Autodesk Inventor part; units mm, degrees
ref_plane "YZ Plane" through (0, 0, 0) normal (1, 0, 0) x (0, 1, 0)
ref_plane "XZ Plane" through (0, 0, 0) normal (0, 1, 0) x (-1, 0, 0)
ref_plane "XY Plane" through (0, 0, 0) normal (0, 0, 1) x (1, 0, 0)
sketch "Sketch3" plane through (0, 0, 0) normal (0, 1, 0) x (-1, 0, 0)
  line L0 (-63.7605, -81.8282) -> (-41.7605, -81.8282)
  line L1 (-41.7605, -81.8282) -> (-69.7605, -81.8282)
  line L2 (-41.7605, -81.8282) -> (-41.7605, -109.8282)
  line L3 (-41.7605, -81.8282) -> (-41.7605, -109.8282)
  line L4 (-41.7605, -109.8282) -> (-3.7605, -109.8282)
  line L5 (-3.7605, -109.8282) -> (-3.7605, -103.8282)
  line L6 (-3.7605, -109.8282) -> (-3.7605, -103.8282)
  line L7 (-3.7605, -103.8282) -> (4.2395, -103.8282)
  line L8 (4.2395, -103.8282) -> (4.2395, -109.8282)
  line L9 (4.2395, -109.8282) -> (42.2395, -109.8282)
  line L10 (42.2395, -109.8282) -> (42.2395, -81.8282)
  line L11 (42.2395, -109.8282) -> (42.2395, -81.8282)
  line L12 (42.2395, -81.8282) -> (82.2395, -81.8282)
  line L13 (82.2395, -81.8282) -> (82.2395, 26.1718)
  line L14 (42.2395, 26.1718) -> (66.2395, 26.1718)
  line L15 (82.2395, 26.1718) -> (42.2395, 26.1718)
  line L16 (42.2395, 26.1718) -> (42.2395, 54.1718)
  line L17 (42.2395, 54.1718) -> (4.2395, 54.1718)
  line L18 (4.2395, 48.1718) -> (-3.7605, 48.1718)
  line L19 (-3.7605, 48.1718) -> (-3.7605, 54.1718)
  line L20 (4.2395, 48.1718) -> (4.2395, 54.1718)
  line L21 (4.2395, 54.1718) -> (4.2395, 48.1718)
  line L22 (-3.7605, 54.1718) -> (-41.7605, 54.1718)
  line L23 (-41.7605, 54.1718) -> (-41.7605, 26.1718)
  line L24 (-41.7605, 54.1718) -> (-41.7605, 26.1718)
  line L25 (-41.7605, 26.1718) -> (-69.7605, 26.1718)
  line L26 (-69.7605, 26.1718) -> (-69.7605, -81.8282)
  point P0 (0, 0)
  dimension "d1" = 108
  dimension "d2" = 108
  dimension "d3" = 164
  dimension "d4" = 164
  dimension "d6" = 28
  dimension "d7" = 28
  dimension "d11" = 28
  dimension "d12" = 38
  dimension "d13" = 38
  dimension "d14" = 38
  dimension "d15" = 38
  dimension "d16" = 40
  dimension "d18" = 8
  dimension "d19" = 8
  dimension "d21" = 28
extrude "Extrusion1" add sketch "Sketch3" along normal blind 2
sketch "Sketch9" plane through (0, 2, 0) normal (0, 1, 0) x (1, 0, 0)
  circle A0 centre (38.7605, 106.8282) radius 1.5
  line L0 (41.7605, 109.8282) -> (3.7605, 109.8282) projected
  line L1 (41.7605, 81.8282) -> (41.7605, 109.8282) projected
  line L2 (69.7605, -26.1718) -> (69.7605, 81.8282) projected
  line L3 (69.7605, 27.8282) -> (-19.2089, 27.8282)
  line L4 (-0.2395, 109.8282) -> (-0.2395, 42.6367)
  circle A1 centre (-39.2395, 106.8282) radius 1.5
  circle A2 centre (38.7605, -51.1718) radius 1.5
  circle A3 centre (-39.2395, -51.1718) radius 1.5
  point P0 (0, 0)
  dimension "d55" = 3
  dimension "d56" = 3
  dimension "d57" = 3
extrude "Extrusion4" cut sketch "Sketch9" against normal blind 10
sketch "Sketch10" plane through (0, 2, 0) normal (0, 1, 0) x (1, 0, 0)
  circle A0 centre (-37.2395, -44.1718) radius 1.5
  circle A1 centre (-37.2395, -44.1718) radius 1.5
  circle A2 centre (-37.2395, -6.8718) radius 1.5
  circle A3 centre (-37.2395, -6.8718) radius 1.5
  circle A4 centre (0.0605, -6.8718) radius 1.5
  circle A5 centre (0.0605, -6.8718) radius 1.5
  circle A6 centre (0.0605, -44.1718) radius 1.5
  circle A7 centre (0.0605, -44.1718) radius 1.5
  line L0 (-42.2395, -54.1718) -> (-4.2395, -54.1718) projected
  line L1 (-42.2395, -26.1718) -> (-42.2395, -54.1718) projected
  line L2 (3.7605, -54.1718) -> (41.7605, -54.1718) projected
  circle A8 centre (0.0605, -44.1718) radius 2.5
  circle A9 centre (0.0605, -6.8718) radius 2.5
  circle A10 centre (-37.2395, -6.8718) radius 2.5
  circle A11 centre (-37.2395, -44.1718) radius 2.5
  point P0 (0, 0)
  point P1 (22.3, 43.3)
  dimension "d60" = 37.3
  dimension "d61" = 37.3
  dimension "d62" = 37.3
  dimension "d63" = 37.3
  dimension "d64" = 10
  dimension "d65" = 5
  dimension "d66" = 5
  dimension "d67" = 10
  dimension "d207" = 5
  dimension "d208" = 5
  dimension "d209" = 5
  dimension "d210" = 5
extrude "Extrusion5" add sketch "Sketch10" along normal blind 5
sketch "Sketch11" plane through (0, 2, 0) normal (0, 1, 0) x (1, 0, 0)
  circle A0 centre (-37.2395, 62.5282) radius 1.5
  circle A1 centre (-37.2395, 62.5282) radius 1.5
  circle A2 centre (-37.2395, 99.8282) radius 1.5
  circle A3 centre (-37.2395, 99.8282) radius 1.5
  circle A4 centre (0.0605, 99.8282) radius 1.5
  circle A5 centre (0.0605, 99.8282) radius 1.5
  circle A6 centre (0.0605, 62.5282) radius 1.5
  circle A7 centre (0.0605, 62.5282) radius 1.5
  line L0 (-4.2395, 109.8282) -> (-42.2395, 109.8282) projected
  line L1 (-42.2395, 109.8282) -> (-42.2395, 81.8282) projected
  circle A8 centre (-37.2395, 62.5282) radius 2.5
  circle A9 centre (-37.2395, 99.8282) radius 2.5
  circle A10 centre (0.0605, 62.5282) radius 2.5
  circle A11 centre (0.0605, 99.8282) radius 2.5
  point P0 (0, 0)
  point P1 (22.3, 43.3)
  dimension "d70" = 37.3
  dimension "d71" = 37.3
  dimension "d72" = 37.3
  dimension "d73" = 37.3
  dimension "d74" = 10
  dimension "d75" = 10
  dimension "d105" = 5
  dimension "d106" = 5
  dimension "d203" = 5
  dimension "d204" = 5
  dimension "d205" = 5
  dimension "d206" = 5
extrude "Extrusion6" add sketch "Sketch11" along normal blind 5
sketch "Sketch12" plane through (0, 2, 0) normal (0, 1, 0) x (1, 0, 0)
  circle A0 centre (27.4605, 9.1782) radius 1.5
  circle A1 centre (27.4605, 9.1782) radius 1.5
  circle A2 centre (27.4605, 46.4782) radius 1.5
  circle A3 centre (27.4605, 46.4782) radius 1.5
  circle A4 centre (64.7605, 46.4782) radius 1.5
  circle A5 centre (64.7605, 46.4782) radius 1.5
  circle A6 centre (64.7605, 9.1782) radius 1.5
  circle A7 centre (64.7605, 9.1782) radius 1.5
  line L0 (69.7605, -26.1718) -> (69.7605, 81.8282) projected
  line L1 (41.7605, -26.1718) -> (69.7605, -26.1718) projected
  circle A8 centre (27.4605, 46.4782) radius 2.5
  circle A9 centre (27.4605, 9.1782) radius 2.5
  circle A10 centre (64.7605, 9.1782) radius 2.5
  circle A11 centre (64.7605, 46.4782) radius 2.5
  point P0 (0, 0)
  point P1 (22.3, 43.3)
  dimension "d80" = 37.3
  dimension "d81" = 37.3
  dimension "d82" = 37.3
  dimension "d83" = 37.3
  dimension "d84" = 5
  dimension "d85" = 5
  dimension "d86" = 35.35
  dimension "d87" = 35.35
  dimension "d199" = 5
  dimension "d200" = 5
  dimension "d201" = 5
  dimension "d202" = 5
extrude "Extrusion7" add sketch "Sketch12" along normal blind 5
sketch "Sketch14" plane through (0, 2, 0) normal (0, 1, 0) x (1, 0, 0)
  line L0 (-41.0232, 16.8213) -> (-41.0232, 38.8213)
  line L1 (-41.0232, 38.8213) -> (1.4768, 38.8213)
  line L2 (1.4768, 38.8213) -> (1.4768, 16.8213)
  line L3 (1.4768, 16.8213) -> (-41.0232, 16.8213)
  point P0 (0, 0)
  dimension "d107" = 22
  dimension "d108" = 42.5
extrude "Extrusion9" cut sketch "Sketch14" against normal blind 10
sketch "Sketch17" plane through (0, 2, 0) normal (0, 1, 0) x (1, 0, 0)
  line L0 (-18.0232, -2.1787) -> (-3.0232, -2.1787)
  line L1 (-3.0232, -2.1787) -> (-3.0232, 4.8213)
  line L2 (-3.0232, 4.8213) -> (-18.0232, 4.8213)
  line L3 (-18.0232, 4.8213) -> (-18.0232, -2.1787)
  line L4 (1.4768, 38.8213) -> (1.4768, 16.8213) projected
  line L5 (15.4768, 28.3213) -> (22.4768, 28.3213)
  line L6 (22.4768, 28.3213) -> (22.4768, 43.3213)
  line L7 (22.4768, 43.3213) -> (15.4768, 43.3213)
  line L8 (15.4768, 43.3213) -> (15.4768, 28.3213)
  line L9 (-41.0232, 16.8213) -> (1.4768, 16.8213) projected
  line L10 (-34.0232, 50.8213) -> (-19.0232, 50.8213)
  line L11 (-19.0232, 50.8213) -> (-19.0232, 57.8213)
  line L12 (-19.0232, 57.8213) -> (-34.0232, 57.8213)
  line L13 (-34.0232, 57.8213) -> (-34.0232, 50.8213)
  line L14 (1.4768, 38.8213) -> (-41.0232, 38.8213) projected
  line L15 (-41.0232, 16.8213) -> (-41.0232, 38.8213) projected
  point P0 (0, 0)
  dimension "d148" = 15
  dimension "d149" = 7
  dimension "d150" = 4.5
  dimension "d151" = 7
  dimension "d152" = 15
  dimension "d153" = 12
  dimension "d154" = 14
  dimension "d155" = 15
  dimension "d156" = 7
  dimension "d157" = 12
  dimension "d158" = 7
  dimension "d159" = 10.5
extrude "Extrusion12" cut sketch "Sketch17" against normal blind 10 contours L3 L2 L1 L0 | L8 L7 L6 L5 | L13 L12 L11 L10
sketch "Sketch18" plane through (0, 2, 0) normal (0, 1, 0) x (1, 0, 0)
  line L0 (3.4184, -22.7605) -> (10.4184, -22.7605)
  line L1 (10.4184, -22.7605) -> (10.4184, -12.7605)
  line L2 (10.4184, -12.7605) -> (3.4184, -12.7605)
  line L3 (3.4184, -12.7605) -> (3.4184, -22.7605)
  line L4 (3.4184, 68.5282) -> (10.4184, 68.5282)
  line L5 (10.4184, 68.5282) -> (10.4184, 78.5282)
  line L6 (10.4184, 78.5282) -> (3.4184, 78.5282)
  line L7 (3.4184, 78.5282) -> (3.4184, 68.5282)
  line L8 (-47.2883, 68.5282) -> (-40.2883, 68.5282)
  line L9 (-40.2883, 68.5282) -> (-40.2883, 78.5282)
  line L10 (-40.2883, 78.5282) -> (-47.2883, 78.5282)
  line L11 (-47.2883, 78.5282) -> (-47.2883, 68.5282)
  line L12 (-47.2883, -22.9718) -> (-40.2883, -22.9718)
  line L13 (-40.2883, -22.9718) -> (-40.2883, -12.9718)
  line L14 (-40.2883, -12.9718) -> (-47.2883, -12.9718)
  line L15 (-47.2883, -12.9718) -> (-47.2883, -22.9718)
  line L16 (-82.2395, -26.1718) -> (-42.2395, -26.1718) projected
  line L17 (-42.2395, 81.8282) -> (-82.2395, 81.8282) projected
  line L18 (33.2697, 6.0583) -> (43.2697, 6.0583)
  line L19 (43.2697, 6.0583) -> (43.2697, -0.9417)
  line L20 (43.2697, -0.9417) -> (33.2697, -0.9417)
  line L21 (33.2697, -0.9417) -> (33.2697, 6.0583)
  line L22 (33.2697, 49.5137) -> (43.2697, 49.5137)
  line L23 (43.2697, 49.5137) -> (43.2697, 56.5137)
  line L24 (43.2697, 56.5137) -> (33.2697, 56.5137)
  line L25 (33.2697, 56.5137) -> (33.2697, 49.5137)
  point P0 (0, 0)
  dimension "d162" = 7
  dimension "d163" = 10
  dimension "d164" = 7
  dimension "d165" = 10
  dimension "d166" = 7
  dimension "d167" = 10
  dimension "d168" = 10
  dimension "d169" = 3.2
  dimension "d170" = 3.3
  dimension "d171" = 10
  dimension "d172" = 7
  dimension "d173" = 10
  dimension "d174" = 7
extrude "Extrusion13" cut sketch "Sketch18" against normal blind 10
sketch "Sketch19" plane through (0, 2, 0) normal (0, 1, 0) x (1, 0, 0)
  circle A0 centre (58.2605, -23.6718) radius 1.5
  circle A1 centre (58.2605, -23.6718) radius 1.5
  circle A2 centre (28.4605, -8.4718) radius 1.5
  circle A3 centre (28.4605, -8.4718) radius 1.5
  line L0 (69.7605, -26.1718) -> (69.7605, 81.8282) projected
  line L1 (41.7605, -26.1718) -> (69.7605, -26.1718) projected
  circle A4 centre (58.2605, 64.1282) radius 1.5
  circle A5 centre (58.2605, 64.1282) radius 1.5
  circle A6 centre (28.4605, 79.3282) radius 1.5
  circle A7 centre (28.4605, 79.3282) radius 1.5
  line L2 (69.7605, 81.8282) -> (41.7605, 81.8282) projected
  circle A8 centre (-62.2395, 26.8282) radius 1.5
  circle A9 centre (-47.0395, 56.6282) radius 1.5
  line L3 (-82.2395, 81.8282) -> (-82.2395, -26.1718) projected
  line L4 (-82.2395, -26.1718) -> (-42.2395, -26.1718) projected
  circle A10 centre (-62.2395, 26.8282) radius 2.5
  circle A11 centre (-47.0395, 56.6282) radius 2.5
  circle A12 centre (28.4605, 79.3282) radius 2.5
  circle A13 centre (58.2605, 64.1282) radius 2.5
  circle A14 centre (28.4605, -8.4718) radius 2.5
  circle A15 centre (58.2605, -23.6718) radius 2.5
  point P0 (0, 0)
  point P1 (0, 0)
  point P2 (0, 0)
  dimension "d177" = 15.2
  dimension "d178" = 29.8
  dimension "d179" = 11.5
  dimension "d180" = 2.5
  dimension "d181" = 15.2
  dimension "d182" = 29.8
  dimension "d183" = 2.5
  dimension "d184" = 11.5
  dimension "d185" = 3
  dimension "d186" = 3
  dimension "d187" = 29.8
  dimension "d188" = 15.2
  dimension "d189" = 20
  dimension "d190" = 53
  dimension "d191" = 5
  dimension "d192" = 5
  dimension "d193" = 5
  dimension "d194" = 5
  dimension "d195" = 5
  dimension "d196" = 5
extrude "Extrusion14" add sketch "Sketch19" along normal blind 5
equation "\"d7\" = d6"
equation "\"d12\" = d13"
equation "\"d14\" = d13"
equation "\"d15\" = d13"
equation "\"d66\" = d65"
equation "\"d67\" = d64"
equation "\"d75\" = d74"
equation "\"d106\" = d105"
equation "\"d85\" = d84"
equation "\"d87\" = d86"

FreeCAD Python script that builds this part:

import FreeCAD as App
import Part
import Sketcher

V = App.Vector

doc = App.newDocument("Part")
body = doc.addObject("PartDesign::Body", "Body")

# Sketch on XZ plane
sketch1 = body.newObject("Sketcher::SketchObject", "Sketch")
sketch1.AttachmentSupport = (doc.getObject("XZ_Plane"), [""])
sketch1.MapMode = "FlatFace"
sketch1.addGeometry([
    Part.LineSegment(V(70, -82, 0), V(42, -82, 0)),  # 0
    Part.LineSegment(V(42, -82, 0), V(42, -110, 0)),  # 1
    Part.LineSegment(V(42, -110, 0), V(4, -110, 0)),  # 2
    Part.LineSegment(V(4, -110, 0), V(4, -104, 0)),  # 3
    Part.LineSegment(V(4, -104, 0), V(-4, -104, 0)),  # 4
    Part.LineSegment(V(-4, -104, 0), V(-4, -110, 0)),  # 5
    Part.LineSegment(V(-4, -110, 0), V(-42, -110, 0)),  # 6
    Part.LineSegment(V(-42, -110, 0), V(-42, -82, 0)),  # 7
    Part.LineSegment(V(-42, -82, 0), V(-82, -82, 0)),  # 8
    Part.LineSegment(V(-82, -82, 0), V(-82, 26, 0)),  # 9
    Part.LineSegment(V(-82, 26, 0), V(-42, 26, 0)),  # 10
    Part.LineSegment(V(-42, 26, 0), V(-42, 54, 0)),  # 11
    Part.LineSegment(V(-42, 54, 0), V(-4, 54, 0)),  # 12
    Part.LineSegment(V(-4, 54, 0), V(-4, 48, 0)),  # 13
    Part.LineSegment(V(-4, 48, 0), V(4, 48, 0)),  # 14
    Part.LineSegment(V(4, 48, 0), V(4, 54, 0)),  # 15
    Part.LineSegment(V(4, 54, 0), V(42, 54, 0)),  # 16
    Part.LineSegment(V(42, 54, 0), V(42, 26, 0)),  # 17
    Part.LineSegment(V(42, 26, 0), V(70, 26, 0)),  # 18
    Part.LineSegment(V(70, 26, 0), V(70, -82, 0)),  # 19
], False)
sketch1.addConstraint([
    Sketcher.Constraint("Coincident", 0, 2, 1, 1),
    Sketcher.Constraint("Coincident", 1, 2, 2, 1),
    Sketcher.Constraint("Coincident", 2, 2, 3, 1),
    Sketcher.Constraint("Coincident", 3, 2, 4, 1),
    Sketcher.Constraint("Coincident", 4, 2, 5, 1),
    Sketcher.Constraint("Coincident", 5, 2, 6, 1),
    Sketcher.Constraint("Coincident", 6, 2, 7, 1),
    Sketcher.Constraint("Coincident", 7, 2, 8, 1),
    Sketcher.Constraint("Coincident", 8, 2, 9, 1),
    Sketcher.Constraint("Coincident", 9, 2, 10, 1),
    Sketcher.Constraint("Coincident", 10, 2, 11, 1),
    Sketcher.Constraint("Coincident", 11, 2, 12, 1),
    Sketcher.Constraint("Coincident", 12, 2, 13, 1),
    Sketcher.Constraint("Coincident", 13, 2, 14, 1),
    Sketcher.Constraint("Coincident", 14, 2, 15, 1),
    Sketcher.Constraint("Coincident", 15, 2, 16, 1),
    Sketcher.Constraint("Coincident", 16, 2, 17, 1),
    Sketcher.Constraint("Coincident", 17, 2, 18, 1),
    Sketcher.Constraint("Coincident", 18, 2, 19, 1),
    Sketcher.Constraint("Coincident", 19, 2, 0, 1),
    Sketcher.Constraint("Horizontal", 0),
    Sketcher.Constraint("Vertical", 1),
    Sketcher.Constraint("Horizontal", 2),
    Sketcher.Constraint("Vertical", 3),
    Sketcher.Constraint("Horizontal", 4),
    Sketcher.Constraint("Vertical", 5),
    Sketcher.Constraint("Horizontal", 6),
    Sketcher.Constraint("Vertical", 7),
    Sketcher.Constraint("Horizontal", 8),
    Sketcher.Constraint("Vertical", 9),
    Sketcher.Constraint("Horizontal", 10),
    Sketcher.Constraint("Vertical", 11),
    Sketcher.Constraint("Horizontal", 12),
    Sketcher.Constraint("Vertical", 13),
    Sketcher.Constraint("Horizontal", 14),
    Sketcher.Constraint("Vertical", 15),
    Sketcher.Constraint("Horizontal", 16),
    Sketcher.Constraint("Vertical", 17),
    Sketcher.Constraint("Horizontal", 18),
    Sketcher.Constraint("Vertical", 19),
    Sketcher.Constraint("Horizontal", 2, 2, 5, 2),
    Sketcher.Constraint("Horizontal", 0, 2, 7, 2),
    Sketcher.Constraint("Horizontal", 12, 2, 15, 2),
    Sketcher.Constraint("Horizontal", 10, 2, 17, 2),
    Sketcher.Constraint("Vertical", 7, 2, 10, 2),
    Sketcher.Constraint("Vertical", 5, 2, 12, 2),
    Sketcher.Constraint("Vertical", 3, 2, 14, 2),
    Sketcher.Constraint("Vertical", 1, 2, 16, 2),
    Sketcher.Constraint("Equal", 2, 6),
    Sketcher.Constraint("Equal", 18, 1),
    Sketcher.Constraint("Equal", 7, 11),
    Sketcher.Constraint("Equal", 5, 13),
    Sketcher.Constraint("DistanceX", 0, 2, 0, 1, 28.0),
    Sketcher.Constraint("DistanceX", 2, 2, 2, 1, 38.0),
    Sketcher.Constraint("DistanceX", 4, 2, 4, 1, 8.0),
    Sketcher.Constraint("DistanceX", 8, 2, 8, 1, 40.0),
    Sketcher.Constraint("DistanceY", 9, 1, 9, 2, 108.0),
    Sketcher.Constraint("DistanceY", 3, 1, 3, 2, 6.0),
    Sketcher.Constraint("DistanceX", -1, 1, 0, 2, 41.7605),
    Sketcher.Constraint("DistanceY", 0, 2, -1, 1, 81.8282),
])
pad1 = body.newObject("PartDesign::Pad", "Pad")
pad1.Profile = sketch1
pad1.Length = 2
pad1.Reversed = True

# Sketch on XZ plane
sketch2 = body.newObject("Sketcher::SketchObject", "Sketch001")
sketch2.AttachmentSupport = (doc.getObject("XZ_Plane"), [""])
sketch2.MapMode = "FlatFace"
sketch2.AttachmentOffset = App.Placement(V(0, 0, -2), App.Rotation())
sketch2.addGeometry([
    Part.Circle(V(38.8, -106.8, 0), V(0, 0, 1), 1.5),
    Part.Circle(V(-39.2, -106.8, 0), V(0, 0, 1), 1.5),
    Part.Circle(V(38.8, 51.2, 0), V(0, 0, 1), 1.5),
    Part.Circle(V(-39.2, 51.2, 0), V(0, 0, 1), 1.5),
], False)
sketch2.addConstraint([
    Sketcher.Constraint("Equal", 0, 1),
    Sketcher.Constraint("Equal", 1, 2),
    Sketcher.Constraint("Equal", 2, 3),
    Sketcher.Constraint("Horizontal", 0, 3, 1, 3),
    Sketcher.Constraint("Horizontal", 2, 3, 3, 3),
    Sketcher.Constraint("Vertical", 0, 3, 2, 3),
    Sketcher.Constraint("Vertical", 1, 3, 3, 3),
    Sketcher.Constraint("Diameter", 0, 3.0),
    Sketcher.Constraint("DistanceX", 1, 3, 0, 3, 78.0),
    Sketcher.Constraint("DistanceY", 0, 3, 2, 3, 158.0),
    Sketcher.Constraint("DistanceX", -1, 1, 0, 3, 38.7605),
    Sketcher.Constraint("DistanceY", 0, 3, -1, 1, 106.8282),
])
pocket1 = body.newObject("PartDesign::Pocket", "Pocket")
pocket1.Profile = sketch2
pocket1.Length = 10
pocket1.Reversed = True

# Sketch on XZ plane
sketch3 = body.newObject("Sketcher::SketchObject", "Sketch002")
sketch3.AttachmentSupport = (doc.getObject("XZ_Plane"), [""])
sketch3.MapMode = "FlatFace"
sketch3.AttachmentOffset = App.Placement(V(0, 0, -2), App.Rotation())
sketch3.addGeometry([
    Part.Circle(V(0.1, 44.2, 0), V(0, 0, 1), 2.5),  # 0
    Part.Circle(V(0.1, 44.2, 0), V(0, 0, 1), 1.5),  # 1
    Part.Circle(V(0.1, 6.9, 0), V(0, 0, 1), 2.5),  # 2
    Part.Circle(V(0.1, 6.9, 0), V(0, 0, 1), 1.5),  # 3
    Part.Circle(V(-37.2, 6.9, 0), V(0, 0, 1), 2.5),  # 4
    Part.Circle(V(-37.2, 6.9, 0), V(0, 0, 1), 1.5),  # 5
    Part.Circle(V(-37.2, 44.2, 0), V(0, 0, 1), 2.5),  # 6
    Part.Circle(V(-37.2, 44.2, 0), V(0, 0, 1), 1.5),  # 7
], False)
sketch3.addConstraint([
    Sketcher.Constraint("Coincident", 1, 3, 0, 3),
    Sketcher.Constraint("Coincident", 3, 3, 2, 3),
    Sketcher.Constraint("Coincident", 5, 3, 4, 3),
    Sketcher.Constraint("Coincident", 7, 3, 6, 3),
    Sketcher.Constraint("Equal", 0, 2),
    Sketcher.Constraint("Equal", 1, 3),
    Sketcher.Constraint("Equal", 2, 4),
    Sketcher.Constraint("Equal", 3, 5),
    Sketcher.Constraint("Equal", 4, 6),
    Sketcher.Constraint("Equal", 5, 7),
    Sketcher.Constraint("Horizontal", 3, 3, 4, 3),
    Sketcher.Constraint("Horizontal", 1, 3, 6, 3),
    Sketcher.Constraint("Vertical", 1, 3, 2, 3),
    Sketcher.Constraint("Vertical", 5, 3, 6, 3),
    Sketcher.Constraint("Diameter", 0, 5.0),
    Sketcher.Constraint("Diameter", 1, 3.0),
    Sketcher.Constraint("DistanceY", 2, 3, 0, 3, 37.3),
    Sketcher.Constraint("DistanceX", 4, 3, 2, 3, 37.3),
    Sketcher.Constraint("DistanceX", -1, 1, 0, 3, 0.0605),
    Sketcher.Constraint("DistanceY", -1, 1, 0, 3, 44.1718),
])
pad2 = body.newObject("PartDesign::Pad", "Pad001")
pad2.Profile = sketch3
pad2.Length = 5
pad2.Reversed = True

# Sketch on XZ plane
sketch4 = body.newObject("Sketcher::SketchObject", "Sketch003")
sketch4.AttachmentSupport = (doc.getObject("XZ_Plane"), [""])
sketch4.MapMode = "FlatFace"
sketch4.AttachmentOffset = App.Placement(V(0, 0, -2), App.Rotation())
sketch4.addGeometry([
    Part.Circle(V(-37.2, -62.5, 0), V(0, 0, 1), 2.5),  # 0
    Part.Circle(V(-37.2, -62.5, 0), V(0, 0, 1), 1.5),  # 1
    Part.Circle(V(-37.2, -99.8, 0), V(0, 0, 1), 2.5),  # 2
    Part.Circle(V(-37.2, -99.8, 0), V(0, 0, 1), 1.5),  # 3
    Part.Circle(V(0.1, -62.5, 0), V(0, 0, 1), 2.5),  # 4
    Part.Circle(V(0.1, -62.5, 0), V(0, 0, 1), 1.5),  # 5
    Part.Circle(V(0.1, -99.8, 0), V(0, 0, 1), 2.5),  # 6
    Part.Circle(V(0.1, -99.8, 0), V(0, 0, 1), 1.5),  # 7
], False)
sketch4.addConstraint([
    Sketcher.Constraint("Coincident", 1, 3, 0, 3),
    Sketcher.Constraint("Coincident", 3, 3, 2, 3),
    Sketcher.Constraint("Coincident", 5, 3, 4, 3),
    Sketcher.Constraint("Coincident", 7, 3, 6, 3),
    Sketcher.Constraint("Equal", 0, 2),
    Sketcher.Constraint("Equal", 1, 3),
    Sketcher.Constraint("Equal", 2, 4),
    Sketcher.Constraint("Equal", 3, 5),
    Sketcher.Constraint("Equal", 4, 6),
    Sketcher.Constraint("Equal", 5, 7),
    Sketcher.Constraint("Horizontal", 1, 3, 4, 3),
    Sketcher.Constraint("Horizontal", 3, 3, 6, 3),
    Sketcher.Constraint("Vertical", 1, 3, 2, 3),
    Sketcher.Constraint("Vertical", 5, 3, 6, 3),
    Sketcher.Constraint("Diameter", 0, 5.0),
    Sketcher.Constraint("Diameter", 1, 3.0),
    Sketcher.Constraint("DistanceY", 2, 3, 0, 3, 37.3),
    Sketcher.Constraint("DistanceX", 0, 3, 4, 3, 37.3),
    Sketcher.Constraint("DistanceX", 0, 3, -1, 1, 37.2395),
    Sketcher.Constraint("DistanceY", 0, 3, -1, 1, 62.5282),
])
pad3 = body.newObject("PartDesign::Pad", "Pad002")
pad3.Profile = sketch4
pad3.Length = 5
pad3.Reversed = True

# Sketch on XZ plane
sketch5 = body.newObject("Sketcher::SketchObject", "Sketch004")
sketch5.AttachmentSupport = (doc.getObject("XZ_Plane"), [""])
sketch5.MapMode = "FlatFace"
sketch5.AttachmentOffset = App.Placement(V(0, 0, -2), App.Rotation())
sketch5.addGeometry([
    Part.Circle(V(27.5, -46.5, 0), V(0, 0, 1), 2.5),  # 0
    Part.Circle(V(27.5, -46.5, 0), V(0, 0, 1), 1.5),  # 1
    Part.Circle(V(27.5, -9.2, 0), V(0, 0, 1), 2.5),  # 2
    Part.Circle(V(27.5, -9.2, 0), V(0, 0, 1), 1.5),  # 3
    Part.Circle(V(64.8, -9.2, 0), V(0, 0, 1), 2.5),  # 4
    Part.Circle(V(64.8, -9.2, 0), V(0, 0, 1), 1.5),  # 5
    Part.Circle(V(64.8, -46.5, 0), V(0, 0, 1), 2.5),  # 6
    Part.Circle(V(64.8, -46.5, 0), V(0, 0, 1), 1.5),  # 7
], False)
sketch5.addConstraint([
    Sketcher.Constraint("Coincident", 1, 3, 0, 3),
    Sketcher.Constraint("Coincident", 3, 3, 2, 3),
    Sketcher.Constraint("Coincident", 5, 3, 4, 3),
    Sketcher.Constraint("Coincident", 7, 3, 6, 3),
    Sketcher.Constraint("Equal", 0, 2),
    Sketcher.Constraint("Equal", 1, 3),
    Sketcher.Constraint("Equal", 2, 4),
    Sketcher.Constraint("Equal", 3, 5),
    Sketcher.Constraint("Equal", 4, 6),
    Sketcher.Constraint("Equal", 5, 7),
    Sketcher.Constraint("Horizontal", 3, 3, 4, 3),
    Sketcher.Constraint("Horizontal", 1, 3, 6, 3),
    Sketcher.Constraint("Vertical", 1, 3, 2, 3),
    Sketcher.Constraint("Vertical", 5, 3, 6, 3),
    Sketcher.Constraint("Diameter", 0, 5.0),
    Sketcher.Constraint("Diameter", 1, 3.0),
    Sketcher.Constraint("DistanceY", 0, 3, 2, 3, 37.3),
    Sketcher.Constraint("DistanceX", 2, 3, 4, 3, 37.3),
    Sketcher.Constraint("DistanceX", -1, 1, 0, 3, 27.4605),
    Sketcher.Constraint("DistanceY", 0, 3, -1, 1, 46.4782),
])
pad4 = body.newObject("PartDesign::Pad", "Pad003")
pad4.Profile = sketch5
pad4.Length = 5
pad4.Reversed = True

# Sketch on XZ plane
sketch6 = body.newObject("Sketcher::SketchObject", "Sketch005")
sketch6.AttachmentSupport = (doc.getObject("XZ_Plane"), [""])
sketch6.MapMode = "FlatFace"
sketch6.AttachmentOffset = App.Placement(V(0, 0, -2), App.Rotation())
sketch6.addGeometry([
    Part.LineSegment(V(-41, -39, 0), V(-41, -17, 0)),
    Part.LineSegment(V(-41, -17, 0), V(1, -17, 0)),
    Part.LineSegment(V(1, -17, 0), V(1, -39, 0)),
    Part.LineSegment(V(1, -39, 0), V(-41, -39, 0)),
], False)
sketch6.addConstraint([
    Sketcher.Constraint("Coincident", 0, 2, 1, 1),
    Sketcher.Constraint("Coincident", 1, 2, 2, 1),
    Sketcher.Constraint("Coincident", 2, 2, 3, 1),
    Sketcher.Constraint("Coincident", 3, 2, 0, 1),
    Sketcher.Constraint("Vertical", 0),
    Sketcher.Constraint("Horizontal", 1),
    Sketcher.Constraint("Vertical", 2),
    Sketcher.Constraint("Horizontal", 3),
    Sketcher.Constraint("DistanceY", 0, 1, 0, 2, 22.0),
    Sketcher.Constraint("DistanceX", 1, 1, 1, 2, 42.5),
    Sketcher.Constraint("DistanceX", 0, 2, -1, 1, 41.0232),
    Sketcher.Constraint("DistanceY", 0, 2, -1, 1, 16.8213),
])
pocket2 = body.newObject("PartDesign::Pocket", "Pocket001")
pocket2.Profile = sketch6
pocket2.Length = 10
pocket2.Reversed = True

# Sketch on XZ plane
sketch7 = body.newObject("Sketcher::SketchObject", "Sketch006")
sketch7.AttachmentSupport = (doc.getObject("XZ_Plane"), [""])
sketch7.MapMode = "FlatFace"
sketch7.AttachmentOffset = App.Placement(V(0, 0, -2), App.Rotation())
sketch7.addGeometry([
    Part.LineSegment(V(-18, -5, 0), V(-18, 2, 0)),  # 0
    Part.LineSegment(V(-18, 2, 0), V(-3, 2, 0)),  # 1
    Part.LineSegment(V(-3, 2, 0), V(-3, -5, 0)),  # 2
    Part.LineSegment(V(-3, -5, 0), V(-18, -5, 0)),  # 3
    Part.LineSegment(V(15, -43, 0), V(15, -28, 0)),  # 4
    Part.LineSegment(V(15, -28, 0), V(22, -28, 0)),  # 5
    Part.LineSegment(V(22, -28, 0), V(22, -43, 0)),  # 6
    Part.LineSegment(V(22, -43, 0), V(15, -43, 0)),  # 7
    Part.LineSegment(V(-34, -58, 0), V(-34, -51, 0)),  # 8
    Part.LineSegment(V(-34, -51, 0), V(-19, -51, 0)),  # 9
    Part.LineSegment(V(-19, -51, 0), V(-19, -58, 0)),  # 10
    Part.LineSegment(V(-19, -58, 0), V(-34, -58, 0)),  # 11
], False)
sketch7.addConstraint([
    Sketcher.Constraint("Coincident", 0, 2, 1, 1),
    Sketcher.Constraint("Coincident", 1, 2, 2, 1),
    Sketcher.Constraint("Coincident", 2, 2, 3, 1),
    Sketcher.Constraint("Coincident", 3, 2, 0, 1),
    Sketcher.Constraint("Coincident", 4, 2, 5, 1),
    Sketcher.Constraint("Coincident", 5, 2, 6, 1),
    Sketcher.Constraint("Coincident", 6, 2, 7, 1),
    Sketcher.Constraint("Coincident", 7, 2, 4, 1),
    Sketcher.Constraint("Coincident", 8, 2, 9, 1),
    Sketcher.Constraint("Coincident", 9, 2, 10, 1),
    Sketcher.Constraint("Coincident", 10, 2, 11, 1),
    Sketcher.Constraint("Coincident", 11, 2, 8, 1),
    Sketcher.Constraint("Vertical", 0),
    Sketcher.Constraint("Horizontal", 1),
    Sketcher.Constraint("Vertical", 2),
    Sketcher.Constraint("Horizontal", 3),
    Sketcher.Constraint("Vertical", 4),
    Sketcher.Constraint("Horizontal", 5),
    Sketcher.Constraint("Vertical", 6),
    Sketcher.Constraint("Horizontal", 7),
    Sketcher.Constraint("Vertical", 8),
    Sketcher.Constraint("Horizontal", 9),
    Sketcher.Constraint("Vertical", 10),
    Sketcher.Constraint("Horizontal", 11),
    Sketcher.Constraint("Equal", 3, 9),
    Sketcher.Constraint("Equal", 7, 0),
    Sketcher.Constraint("Equal", 11, 4),
    Sketcher.Constraint("Equal", 2, 8),
    Sketcher.Constraint("DistanceX", 1, 1, 1, 2, 15.0),
    Sketcher.Constraint("DistanceX", 5, 1, 5, 2, 7.0),
    Sketcher.Constraint("DistanceX", 8, 2, 3, 2, 16.0),
    Sketcher.Constraint("DistanceY", 8, 2, 3, 2, 46.0),
    Sketcher.Constraint("DistanceX", 2, 2, 4, 2, 18.5),
    Sketcher.Constraint("DistanceY", 4, 2, 2, 2, 23.5),
    Sketcher.Constraint("DistanceX", 0, 2, -1, 1, 18.0232),
    Sketcher.Constraint("DistanceY", -1, 1, 0, 2, 2.1787),
])
pocket3 = body.newObject("PartDesign::Pocket", "Pocket002")
pocket3.Profile = sketch7
pocket3.Length = 10
pocket3.Reversed = True

# Sketch on XZ plane
sketch8 = body.newObject("Sketcher::SketchObject", "Sketch007")
sketch8.AttachmentSupport = (doc.getObject("XZ_Plane"), [""])
sketch8.MapMode = "FlatFace"
sketch8.AttachmentOffset = App.Placement(V(0, 0, -2), App.Rotation())
sketch8.addGeometry([
    Part.LineSegment(V(3, 13, 0), V(3, 23, 0)),  # 0
    Part.LineSegment(V(3, 23, 0), V(10, 23, 0)),  # 1
    Part.LineSegment(V(10, 23, 0), V(10, 13, 0)),  # 2
    Part.LineSegment(V(10, 13, 0), V(3, 13, 0)),  # 3
    Part.LineSegment(V(3, -79, 0), V(3, -69, 0)),  # 4
    Part.LineSegment(V(3, -69, 0), V(10, -69, 0)),  # 5
    Part.LineSegment(V(10, -69, 0), V(10, -79, 0)),  # 6
    Part.LineSegment(V(10, -79, 0), V(3, -79, 0)),  # 7
    Part.LineSegment(V(-47, -79, 0), V(-47, -69, 0)),  # 8
    Part.LineSegment(V(-47, -69, 0), V(-40, -69, 0)),  # 9
    Part.LineSegment(V(-40, -69, 0), V(-40, -79, 0)),  # 10
    Part.LineSegment(V(-40, -79, 0), V(-47, -79, 0)),  # 11
    Part.LineSegment(V(-47, 13, 0), V(-47, 23, 0)),  # 12
    Part.LineSegment(V(-47, 23, 0), V(-40, 23, 0)),  # 13
    Part.LineSegment(V(-40, 23, 0), V(-40, 13, 0)),  # 14
    Part.LineSegment(V(-40, 13, 0), V(-47, 13, 0)),  # 15
    Part.LineSegment(V(43, -6, 0), V(33, -6, 0)),  # 16
    Part.LineSegment(V(33, -6, 0), V(33, 1, 0)),  # 17
    Part.LineSegment(V(33, 1, 0), V(43, 1, 0)),  # 18
    Part.LineSegment(V(43, 1, 0), V(43, -6, 0)),  # 19
    Part.LineSegment(V(33, -57, 0), V(33, -50, 0)),  # 20
    Part.LineSegment(V(33, -50, 0), V(43, -50, 0)),  # 21
    Part.LineSegment(V(43, -50, 0), V(43, -57, 0)),  # 22
    Part.LineSegment(V(43, -57, 0), V(33, -57, 0)),  # 23
], False)
sketch8.addConstraint([
    Sketcher.Constraint("Coincident", 0, 2, 1, 1),
    Sketcher.Constraint("Coincident", 1, 2, 2, 1),
    Sketcher.Constraint("Coincident", 2, 2, 3, 1),
    Sketcher.Constraint("Coincident", 3, 2, 0, 1),
    Sketcher.Constraint("Coincident", 4, 2, 5, 1),
    Sketcher.Constraint("Coincident", 5, 2, 6, 1),
    Sketcher.Constraint("Coincident", 6, 2, 7, 1),
    Sketcher.Constraint("Coincident", 7, 2, 4, 1),
    Sketcher.Constraint("Coincident", 8, 2, 9, 1),
    Sketcher.Constraint("Coincident", 9, 2, 10, 1),
    Sketcher.Constraint("Coincident", 10, 2, 11, 1),
    Sketcher.Constraint("Coincident", 11, 2, 8, 1),
    Sketcher.Constraint("Coincident", 12, 2, 13, 1),
    Sketcher.Constraint("Coincident", 13, 2, 14, 1),
    Sketcher.Constraint("Coincident", 14, 2, 15, 1),
    Sketcher.Constraint("Coincident", 15, 2, 12, 1),
    Sketcher.Constraint("Coincident", 16, 2, 17, 1),
    Sketcher.Constraint("Coincident", 17, 2, 18, 1),
    Sketcher.Constraint("Coincident", 18, 2, 19, 1),
    Sketcher.Constraint("Coincident", 19, 2, 16, 1),
    Sketcher.Constraint("Coincident", 20, 2, 21, 1),
    Sketcher.Constraint("Coincident", 21, 2, 22, 1),
    Sketcher.Constraint("Coincident", 22, 2, 23, 1),
    Sketcher.Constraint("Coincident", 23, 2, 20, 1),
    Sketcher.Constraint("Vertical", 0),
    Sketcher.Constraint("Horizontal", 1),
    Sketcher.Constraint("Vertical", 2),
    Sketcher.Constraint("Horizontal", 3),
    Sketcher.Constraint("Vertical", 4),
    Sketcher.Constraint("Horizontal", 5),
    Sketcher.Constraint("Vertical", 6),
    Sketcher.Constraint("Horizontal", 7),
    Sketcher.Constraint("Vertical", 8),
    Sketcher.Constraint("Horizontal", 9),
    Sketcher.Constraint("Vertical", 10),
    Sketcher.Constraint("Horizontal", 11),
    Sketcher.Constraint("Vertical", 12),
    Sketcher.Constraint("Horizontal", 13),
    Sketcher.Constraint("Vertical", 14),
    Sketcher.Constraint("Horizontal", 15),
    Sketcher.Constraint("Horizontal", 16),
    Sketcher.Constraint("Vertical", 17),
    Sketcher.Constraint("Horizontal", 18),
    Sketcher.Constraint("Vertical", 19),
    Sketcher.Constraint("Vertical", 20),
    Sketcher.Constraint("Horizontal", 21),
    Sketcher.Constraint("Vertical", 22),
    Sketcher.Constraint("Horizontal", 23),
    Sketcher.Constraint("Horizontal", 5, 2, 8, 2),
    Sketcher.Constraint("Horizontal", 7, 2, 10, 2),
    Sketcher.Constraint("Vertical", 3, 2, 4, 2),
    Sketcher.Constraint("Vertical", 2, 2, 5, 2),
    Sketcher.Constraint("Vertical", 11, 2, 12, 2),
    Sketcher.Constraint("Vertical", 10, 2, 13, 2),
    Sketcher.Constraint("Vertical", 17, 2, 20, 2),
    Sketcher.Constraint("Vertical", 19, 2, 21, 2),
    Sketcher.Constraint("Equal", 7, 9),
    Sketcher.Constraint("Equal", 23, 0),
    Sketcher.Constraint("Equal", 2, 4),
    Sketcher.Constraint("Equal", 10, 12),
    Sketcher.Constraint("Equal", 15, 17),
    Sketcher.Constraint("Equal", 19, 20),
    Sketcher.Constraint("DistanceX", 1, 1, 1, 2, 7.0),
    Sketcher.Constraint("DistanceX", 16, 2, 16, 1, 10.0),
    Sketcher.Constraint("DistanceY", 8, 2, 12, 2, 91.5),
    Sketcher.Constraint("DistanceY", 5, 2, 16, 2, 62.47),
    Sketcher.Constraint("DistanceX", -1, 1, 0, 2, 3.4184),
    Sketcher.Constraint("DistanceY", -1, 1, 0, 2, 22.7605),
    Sketcher.Constraint("DistanceY", 4, 2, -1, 1, 68.5282),
    Sketcher.Constraint("DistanceX", 8, 2, -1, 1, 47.2883),
    Sketcher.Constraint("DistanceX", -1, 1, 16, 2, 33.2697),
    Sketcher.Constraint("DistanceY", 20, 2, -1, 1, 49.5137),
])
pocket4 = body.newObject("PartDesign::Pocket", "Pocket003")
pocket4.Profile = sketch8
pocket4.Length = 10
pocket4.Reversed = True

# Sketch on XZ plane
sketch9 = body.newObject("Sketcher::SketchObject", "Sketch008")
sketch9.AttachmentSupport = (doc.getObject("XZ_Plane"), [""])
sketch9.MapMode = "FlatFace"
sketch9.AttachmentOffset = App.Placement(V(0, 0, -2), App.Rotation())
sketch9.addGeometry([
    Part.Circle(V(-62.2, -26.8, 0), V(0, 0, 1), 2.5),  # 0
    Part.Circle(V(-62.2, -26.8, 0), V(0, 0, 1), 1.5),  # 1
    Part.Circle(V(-47, -56.6, 0), V(0, 0, 1), 2.5),  # 2
    Part.Circle(V(-47, -56.6, 0), V(0, 0, 1), 1.5),  # 3
    Part.Circle(V(28.5, -79.3, 0), V(0, 0, 1), 2.5),  # 4
    Part.Circle(V(28.5, -79.3, 0), V(0, 0, 1), 1.5),  # 5
    Part.Circle(V(58.3, -64.1, 0), V(0, 0, 1), 2.5),  # 6
    Part.Circle(V(58.3, -64.1, 0), V(0, 0, 1), 1.5),  # 7
    Part.Circle(V(28.5, 8.5, 0), V(0, 0, 1), 2.5),  # 8
    Part.Circle(V(28.5, 8.5, 0), V(0, 0, 1), 1.5),  # 9
    Part.Circle(V(58.3, 23.7, 0), V(0, 0, 1), 2.5),  # 10
    Part.Circle(V(58.3, 23.7, 0), V(0, 0, 1), 1.5),  # 11
], False)
sketch9.addConstraint([
    Sketcher.Constraint("Coincident", 1, 3, 0, 3),
    Sketcher.Constraint("Coincident", 3, 3, 2, 3),
    Sketcher.Constraint("Coincident", 5, 3, 4, 3),
    Sketcher.Constraint("Coincident", 7, 3, 6, 3),
    Sketcher.Constraint("Coincident", 9, 3, 8, 3),
    Sketcher.Constraint("Coincident", 11, 3, 10, 3),
    Sketcher.Constraint("Equal", 0, 2),
    Sketcher.Constraint("Equal", 1, 3),
    Sketcher.Constraint("Equal", 2, 4),
    Sketcher.Constraint("Equal", 3, 5),
    Sketcher.Constraint("Equal", 4, 6),
    Sketcher.Constraint("Equal", 5, 7),
    Sketcher.Constraint("Equal", 6, 8),
    Sketcher.Constraint("Equal", 7, 9),
    Sketcher.Constraint("Equal", 8, 10),
    Sketcher.Constraint("Equal", 9, 11),
    Sketcher.Constraint("Vertical", 5, 3, 8, 3),
    Sketcher.Constraint("Vertical", 7, 3, 10, 3),
    Sketcher.Constraint("Diameter", 0, 5.0),
    Sketcher.Constraint("Diameter", 1, 3.0),
    Sketcher.Constraint("DistanceX", 0, 3, 2, 3, 15.2),
    Sketcher.Constraint("DistanceY", 2, 3, 0, 3, 29.8),
    Sketcher.Constraint("DistanceX", 4, 3, 6, 3, 29.8),
    Sketcher.Constraint("DistanceY", 4, 3, 6, 3, 15.2),
    Sketcher.Constraint("DistanceY", 8, 3, 10, 3, 15.2),
    Sketcher.Constraint("DistanceY", 4, 3, 10, 3, 103.0),
    Sketcher.Constraint("DistanceX", 2, 3, 4, 3, 75.5),
    Sketcher.Constraint("DistanceY", 4, 3, 2, 3, 22.7),
    Sketcher.Constraint("DistanceX", 0, 3, -1, 1, 62.2395),
    Sketcher.Constraint("DistanceY", 0, 3, -1, 1, 26.8282),
])
pad5 = body.newObject("PartDesign::Pad", "Pad004")
pad5.Profile = sketch9
pad5.Length = 5
pad5.Reversed = True

doc.recompute()
